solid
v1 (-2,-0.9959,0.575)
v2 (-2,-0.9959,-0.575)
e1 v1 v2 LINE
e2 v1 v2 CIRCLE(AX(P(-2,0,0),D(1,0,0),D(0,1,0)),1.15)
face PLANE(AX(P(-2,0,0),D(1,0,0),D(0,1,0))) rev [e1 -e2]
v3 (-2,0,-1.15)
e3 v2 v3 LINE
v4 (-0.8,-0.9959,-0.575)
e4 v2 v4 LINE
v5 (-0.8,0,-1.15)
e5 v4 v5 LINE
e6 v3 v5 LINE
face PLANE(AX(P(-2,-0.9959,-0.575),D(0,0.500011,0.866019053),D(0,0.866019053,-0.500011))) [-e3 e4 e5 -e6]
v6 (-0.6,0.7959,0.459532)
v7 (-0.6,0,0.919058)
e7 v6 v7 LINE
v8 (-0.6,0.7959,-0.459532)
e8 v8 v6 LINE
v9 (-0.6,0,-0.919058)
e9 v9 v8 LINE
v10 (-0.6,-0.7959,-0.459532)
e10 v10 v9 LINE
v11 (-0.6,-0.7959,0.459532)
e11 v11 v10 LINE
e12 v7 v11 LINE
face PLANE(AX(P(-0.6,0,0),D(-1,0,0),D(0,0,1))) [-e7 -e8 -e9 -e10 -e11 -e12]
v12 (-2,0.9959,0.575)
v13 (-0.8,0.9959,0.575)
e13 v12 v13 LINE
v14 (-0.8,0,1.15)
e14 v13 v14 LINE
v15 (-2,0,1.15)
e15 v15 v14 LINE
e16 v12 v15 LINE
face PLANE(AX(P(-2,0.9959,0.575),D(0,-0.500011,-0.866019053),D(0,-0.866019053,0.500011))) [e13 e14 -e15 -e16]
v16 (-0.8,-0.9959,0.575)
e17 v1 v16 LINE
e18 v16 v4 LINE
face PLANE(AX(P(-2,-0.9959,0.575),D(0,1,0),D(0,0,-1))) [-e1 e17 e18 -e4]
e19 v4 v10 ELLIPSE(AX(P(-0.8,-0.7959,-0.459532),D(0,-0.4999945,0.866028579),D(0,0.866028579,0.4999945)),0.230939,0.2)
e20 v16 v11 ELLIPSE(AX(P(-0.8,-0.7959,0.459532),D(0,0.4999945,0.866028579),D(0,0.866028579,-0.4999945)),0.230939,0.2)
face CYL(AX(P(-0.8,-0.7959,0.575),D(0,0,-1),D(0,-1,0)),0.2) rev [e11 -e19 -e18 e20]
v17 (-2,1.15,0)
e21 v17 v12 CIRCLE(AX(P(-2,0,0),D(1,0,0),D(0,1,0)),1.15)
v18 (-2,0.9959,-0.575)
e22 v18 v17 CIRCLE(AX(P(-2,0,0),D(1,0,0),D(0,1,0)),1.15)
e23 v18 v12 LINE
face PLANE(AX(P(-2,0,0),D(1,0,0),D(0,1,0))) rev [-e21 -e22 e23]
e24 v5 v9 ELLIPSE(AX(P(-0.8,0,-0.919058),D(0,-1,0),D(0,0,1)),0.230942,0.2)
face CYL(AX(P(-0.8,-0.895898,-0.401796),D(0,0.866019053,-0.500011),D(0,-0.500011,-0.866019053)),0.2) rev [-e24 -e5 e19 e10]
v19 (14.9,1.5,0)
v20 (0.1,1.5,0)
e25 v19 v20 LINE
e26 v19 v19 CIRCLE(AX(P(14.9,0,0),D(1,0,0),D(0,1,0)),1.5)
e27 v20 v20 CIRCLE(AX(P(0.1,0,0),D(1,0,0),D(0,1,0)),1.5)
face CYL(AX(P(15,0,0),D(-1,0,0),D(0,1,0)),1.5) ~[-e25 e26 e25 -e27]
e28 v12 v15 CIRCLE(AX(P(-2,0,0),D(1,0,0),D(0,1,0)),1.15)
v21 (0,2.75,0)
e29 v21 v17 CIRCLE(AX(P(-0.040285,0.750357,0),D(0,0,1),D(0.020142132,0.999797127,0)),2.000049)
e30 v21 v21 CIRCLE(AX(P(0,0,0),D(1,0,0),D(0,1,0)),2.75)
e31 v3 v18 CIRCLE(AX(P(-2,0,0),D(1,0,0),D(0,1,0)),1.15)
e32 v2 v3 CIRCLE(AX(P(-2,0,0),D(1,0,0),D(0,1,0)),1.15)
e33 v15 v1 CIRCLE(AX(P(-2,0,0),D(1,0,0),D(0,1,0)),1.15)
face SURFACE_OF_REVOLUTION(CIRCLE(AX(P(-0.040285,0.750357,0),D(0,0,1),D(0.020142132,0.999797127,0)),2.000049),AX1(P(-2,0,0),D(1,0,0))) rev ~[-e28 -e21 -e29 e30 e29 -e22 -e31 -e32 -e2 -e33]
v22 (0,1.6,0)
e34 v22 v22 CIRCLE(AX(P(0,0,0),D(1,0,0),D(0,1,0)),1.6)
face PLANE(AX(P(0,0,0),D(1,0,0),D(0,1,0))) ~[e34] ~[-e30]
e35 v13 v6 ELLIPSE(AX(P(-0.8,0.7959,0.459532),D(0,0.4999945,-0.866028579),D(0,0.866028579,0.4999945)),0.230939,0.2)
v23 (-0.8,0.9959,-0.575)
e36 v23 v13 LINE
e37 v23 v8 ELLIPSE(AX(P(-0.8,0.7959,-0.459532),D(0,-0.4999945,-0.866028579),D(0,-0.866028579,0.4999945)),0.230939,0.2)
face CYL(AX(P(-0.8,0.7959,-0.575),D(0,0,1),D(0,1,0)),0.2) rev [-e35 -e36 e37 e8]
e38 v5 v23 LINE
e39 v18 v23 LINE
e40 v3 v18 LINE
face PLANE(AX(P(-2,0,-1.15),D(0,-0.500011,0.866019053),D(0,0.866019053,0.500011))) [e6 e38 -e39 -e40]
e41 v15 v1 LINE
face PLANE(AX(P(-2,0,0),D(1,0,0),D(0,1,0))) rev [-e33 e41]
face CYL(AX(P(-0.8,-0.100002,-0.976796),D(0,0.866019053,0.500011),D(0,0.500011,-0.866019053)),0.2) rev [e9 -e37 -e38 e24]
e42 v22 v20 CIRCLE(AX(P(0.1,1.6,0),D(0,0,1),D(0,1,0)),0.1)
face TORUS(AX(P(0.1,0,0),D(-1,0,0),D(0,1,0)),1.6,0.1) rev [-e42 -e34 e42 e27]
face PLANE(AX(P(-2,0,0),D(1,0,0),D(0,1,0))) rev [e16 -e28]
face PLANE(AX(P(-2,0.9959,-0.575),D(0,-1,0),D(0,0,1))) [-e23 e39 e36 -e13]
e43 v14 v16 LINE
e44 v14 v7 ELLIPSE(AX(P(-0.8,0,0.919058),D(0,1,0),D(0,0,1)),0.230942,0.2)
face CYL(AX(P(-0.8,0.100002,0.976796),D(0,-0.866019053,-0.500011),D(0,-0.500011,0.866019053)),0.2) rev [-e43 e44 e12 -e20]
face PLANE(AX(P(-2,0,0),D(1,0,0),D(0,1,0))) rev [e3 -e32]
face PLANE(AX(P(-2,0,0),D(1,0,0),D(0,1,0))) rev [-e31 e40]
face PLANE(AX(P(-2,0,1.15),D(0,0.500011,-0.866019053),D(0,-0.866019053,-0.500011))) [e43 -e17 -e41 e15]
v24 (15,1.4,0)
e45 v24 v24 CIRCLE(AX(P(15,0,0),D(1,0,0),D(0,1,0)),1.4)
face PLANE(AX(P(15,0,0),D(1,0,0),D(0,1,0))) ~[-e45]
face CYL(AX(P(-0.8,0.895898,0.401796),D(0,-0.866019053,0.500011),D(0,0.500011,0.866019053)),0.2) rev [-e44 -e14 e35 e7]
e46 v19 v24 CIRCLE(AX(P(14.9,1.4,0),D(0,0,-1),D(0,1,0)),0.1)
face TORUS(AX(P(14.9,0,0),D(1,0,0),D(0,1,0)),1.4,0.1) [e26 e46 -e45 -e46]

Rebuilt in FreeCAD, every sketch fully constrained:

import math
import FreeCAD as App
import Part
import Sketcher
from FreeCAD import Vector


def edges_at(feature, points):
    """Names of the edges that pass closest to the given points."""
    edges = feature.Shape.Edges
    near = lambda p: min(range(len(edges)), key=lambda i: edges[i].distToShape(Part.Vertex(*p))[0])
    return sorted({f"Edge{near(p) + 1}" for p in points})


def add_polygon(sketch, points):
    """Adds a closed chain of lines whose ends are joined by coincident constraints."""
    first, n = sketch.GeometryCount, len(points)
    for a, b in zip(points, points[1:] + points[:1]):
        sketch.addGeometry(Part.LineSegment(App.Vector(*a, 0), App.Vector(*b, 0)), False)
    for i in range(n):
        sketch.addConstraint(Sketcher.Constraint("Coincident", first + i, 2, first + (i + 1) % n, 1))

doc = App.newDocument("Part")
params = doc.addObject("Spreadsheet::Sheet", "Params")
for row, (alias, value) in enumerate([
    ("sketch1_radius", "2 mm"),
    ("sketch1_width", "15 mm"),
    ("sketch1_height", "1.5 mm"),
    ("sketch1_height2", "1.15 mm"),
    ("revolution_angle", "360 deg"),
    ("sketch2_height", "1.15 mm"),
    ("sketch2_length", "1.15 mm"),
    ("pocket1_length", "1.4 mm"),
    ("fillet_radius", "0.2 mm"),
    ("fillet2_radius", "0.1 mm"),
    ("fillet3_radius", "0.1 mm"),
], start=1):
    params.set(f"A{row}", alias)
    params.set(f"B{row}", "=" + value)
    params.setAlias(f"B{row}", alias)

body = doc.addObject("PartDesign::Body", "Body")

sketch1 = body.newObject("Sketcher::SketchObject", "Sketch")
sketch1.AttachmentSupport = (doc.getObject("XY_Plane"), [""])
sketch1.MapMode = "FlatFace"
sketch1.addGeometry([
    Part.LineSegment(Vector(15, 1.5, 0), Vector(0, 1.5, 0)),
    Part.LineSegment(Vector(0, 1.5, 0), Vector(0, 2.75, 0)),
    Part.ArcOfCircle(Part.Circle(Vector(-0.0403, 0.7504, 0), Vector(0, 0, 1), 2.000006), math.radians(88.845415), math.radians(168.474888)),
    Part.LineSegment(Vector(-2, 1.15, 0), Vector(-2, 0, 0)),
    Part.LineSegment(Vector(-2, 0, 0), Vector(15, 0, 0)),
    Part.LineSegment(Vector(15, 0, 0), Vector(15, 1.5, 0)),
], False)
sketch1.addConstraint([
    Sketcher.Constraint("Coincident", 0, 2, 1, 1),
    Sketcher.Constraint("Coincident", 1, 2, 2, 1),
    Sketcher.Constraint("Coincident", 2, 2, 3, 1),
    Sketcher.Constraint("Coincident", 3, 2, 4, 1),
    Sketcher.Constraint("Coincident", 4, 2, 5, 1),
    Sketcher.Constraint("Coincident", 5, 2, 0, 1),
    Sketcher.Constraint("Horizontal", 0),
    Sketcher.Constraint("Vertical", 1),
    Sketcher.Constraint("Vertical", 3),
    Sketcher.Constraint("Horizontal", 4),
    Sketcher.Constraint("Vertical", 5),
    Sketcher.Constraint("PointOnObject", 0, 2, -2),
    Sketcher.Constraint("PointOnObject", 3, 2, -1),
    Sketcher.Constraint("Radius", 2, 2.0),
    Sketcher.Constraint("DistanceX", 0, 2, 0, 1, 15.0),
    Sketcher.Constraint("DistanceY", 5, 1, 5, 2, 1.5),
    Sketcher.Constraint("DistanceX", 2, 2, -1, 1, 2.0),
    Sketcher.Constraint("DistanceY", 3, 2, 3, 1, 1.15),
    Sketcher.Constraint("DistanceY", -1, 1, 1, 2, 2.75),
])
sketch1.setExpression("Constraints[13]", "Params.sketch1_radius")
sketch1.setExpression("Constraints[14]", "Params.sketch1_width")
sketch1.setExpression("Constraints[15]", "Params.sketch1_height")
sketch1.setExpression("Constraints[17]", "Params.sketch1_height2")
revolution = body.newObject("PartDesign::Revolution", "Revolution")
revolution.Profile = sketch1
revolution.ReferenceAxis = (sketch1, ["H_Axis"])
revolution.setExpression("Angle", "Params.revolution_angle")

sketch2 = body.newObject("Sketcher::SketchObject", "Sketch001")
sketch2.AttachmentSupport = (doc.getObject("YZ_Plane"), [""])
sketch2.MapMode = "FlatFace"
sketch2.AttachmentOffset = App.Placement(Vector(0, 0, -2), App.Rotation())
add_polygon(sketch2, [(-0.9959, 0.575), (0, 1.15), (0.9959, 0.575), (0.9959, -0.575), (0, -1.15), (-0.9959, -0.575)])
sketch2.addConstraint([
    Sketcher.Constraint("Vertical", 2),
    Sketcher.Constraint("Vertical", 5),
    Sketcher.Constraint("Symmetric", 0, 2, 3, 2, -1, 1),
    Sketcher.Constraint("Symmetric", 1, 2, 4, 2, -1, 1),
    Sketcher.Constraint("PointOnObject", 0, 2, -2),
    Sketcher.Constraint("Parallel", 0, 3),
    Sketcher.Constraint("Horizontal", 2, 2, 4, 2),
    Sketcher.Constraint("DistanceY", 2, 2, 2, 1, 1.15),
    Sketcher.Constraint("Distance", 0, 1.15),
    Sketcher.Constraint("DistanceY", -1, 1, 0, 2, 1.15),
])
sketch2.setExpression("Constraints[13]", "Params.sketch2_height")
sketch2.setExpression("Constraints[14]", "Params.sketch2_length")
pocket1 = body.newObject("PartDesign::Pocket", "Pocket")
pocket1.Profile = sketch2
pocket1.setExpression("Length", "Params.pocket1_length")
pocket1.Reversed = True
doc.recompute()

fillet = body.newObject("PartDesign::Fillet", "Fillet")
fillet.Base = (pocket1, edges_at(pocket1, [
    (-0.6, 0.996, 0),
    (-0.6, 0.498, 0.863),
    (-0.6, 0.498, -0.863),
    (-0.6, -0.498, -0.863),
    (-0.6, -0.996, 0),
    (-0.6, -0.498, 0.863),
]))
fillet.setExpression("Radius", "Params.fillet_radius")
doc.recompute()

fillet2 = body.newObject("PartDesign::Fillet", "Fillet001")
fillet2.Base = (fillet, edges_at(fillet, [(0, -1.5, 0)]))
fillet2.setExpression("Radius", "Params.fillet2_radius")
doc.recompute()

fillet3 = body.newObject("PartDesign::Fillet", "Fillet002")
fillet3.Base = (fillet2, edges_at(fillet2, [(15, -1.5, 0)]))
fillet3.setExpression("Radius", "Params.fillet3_radius")

doc.recompute()
